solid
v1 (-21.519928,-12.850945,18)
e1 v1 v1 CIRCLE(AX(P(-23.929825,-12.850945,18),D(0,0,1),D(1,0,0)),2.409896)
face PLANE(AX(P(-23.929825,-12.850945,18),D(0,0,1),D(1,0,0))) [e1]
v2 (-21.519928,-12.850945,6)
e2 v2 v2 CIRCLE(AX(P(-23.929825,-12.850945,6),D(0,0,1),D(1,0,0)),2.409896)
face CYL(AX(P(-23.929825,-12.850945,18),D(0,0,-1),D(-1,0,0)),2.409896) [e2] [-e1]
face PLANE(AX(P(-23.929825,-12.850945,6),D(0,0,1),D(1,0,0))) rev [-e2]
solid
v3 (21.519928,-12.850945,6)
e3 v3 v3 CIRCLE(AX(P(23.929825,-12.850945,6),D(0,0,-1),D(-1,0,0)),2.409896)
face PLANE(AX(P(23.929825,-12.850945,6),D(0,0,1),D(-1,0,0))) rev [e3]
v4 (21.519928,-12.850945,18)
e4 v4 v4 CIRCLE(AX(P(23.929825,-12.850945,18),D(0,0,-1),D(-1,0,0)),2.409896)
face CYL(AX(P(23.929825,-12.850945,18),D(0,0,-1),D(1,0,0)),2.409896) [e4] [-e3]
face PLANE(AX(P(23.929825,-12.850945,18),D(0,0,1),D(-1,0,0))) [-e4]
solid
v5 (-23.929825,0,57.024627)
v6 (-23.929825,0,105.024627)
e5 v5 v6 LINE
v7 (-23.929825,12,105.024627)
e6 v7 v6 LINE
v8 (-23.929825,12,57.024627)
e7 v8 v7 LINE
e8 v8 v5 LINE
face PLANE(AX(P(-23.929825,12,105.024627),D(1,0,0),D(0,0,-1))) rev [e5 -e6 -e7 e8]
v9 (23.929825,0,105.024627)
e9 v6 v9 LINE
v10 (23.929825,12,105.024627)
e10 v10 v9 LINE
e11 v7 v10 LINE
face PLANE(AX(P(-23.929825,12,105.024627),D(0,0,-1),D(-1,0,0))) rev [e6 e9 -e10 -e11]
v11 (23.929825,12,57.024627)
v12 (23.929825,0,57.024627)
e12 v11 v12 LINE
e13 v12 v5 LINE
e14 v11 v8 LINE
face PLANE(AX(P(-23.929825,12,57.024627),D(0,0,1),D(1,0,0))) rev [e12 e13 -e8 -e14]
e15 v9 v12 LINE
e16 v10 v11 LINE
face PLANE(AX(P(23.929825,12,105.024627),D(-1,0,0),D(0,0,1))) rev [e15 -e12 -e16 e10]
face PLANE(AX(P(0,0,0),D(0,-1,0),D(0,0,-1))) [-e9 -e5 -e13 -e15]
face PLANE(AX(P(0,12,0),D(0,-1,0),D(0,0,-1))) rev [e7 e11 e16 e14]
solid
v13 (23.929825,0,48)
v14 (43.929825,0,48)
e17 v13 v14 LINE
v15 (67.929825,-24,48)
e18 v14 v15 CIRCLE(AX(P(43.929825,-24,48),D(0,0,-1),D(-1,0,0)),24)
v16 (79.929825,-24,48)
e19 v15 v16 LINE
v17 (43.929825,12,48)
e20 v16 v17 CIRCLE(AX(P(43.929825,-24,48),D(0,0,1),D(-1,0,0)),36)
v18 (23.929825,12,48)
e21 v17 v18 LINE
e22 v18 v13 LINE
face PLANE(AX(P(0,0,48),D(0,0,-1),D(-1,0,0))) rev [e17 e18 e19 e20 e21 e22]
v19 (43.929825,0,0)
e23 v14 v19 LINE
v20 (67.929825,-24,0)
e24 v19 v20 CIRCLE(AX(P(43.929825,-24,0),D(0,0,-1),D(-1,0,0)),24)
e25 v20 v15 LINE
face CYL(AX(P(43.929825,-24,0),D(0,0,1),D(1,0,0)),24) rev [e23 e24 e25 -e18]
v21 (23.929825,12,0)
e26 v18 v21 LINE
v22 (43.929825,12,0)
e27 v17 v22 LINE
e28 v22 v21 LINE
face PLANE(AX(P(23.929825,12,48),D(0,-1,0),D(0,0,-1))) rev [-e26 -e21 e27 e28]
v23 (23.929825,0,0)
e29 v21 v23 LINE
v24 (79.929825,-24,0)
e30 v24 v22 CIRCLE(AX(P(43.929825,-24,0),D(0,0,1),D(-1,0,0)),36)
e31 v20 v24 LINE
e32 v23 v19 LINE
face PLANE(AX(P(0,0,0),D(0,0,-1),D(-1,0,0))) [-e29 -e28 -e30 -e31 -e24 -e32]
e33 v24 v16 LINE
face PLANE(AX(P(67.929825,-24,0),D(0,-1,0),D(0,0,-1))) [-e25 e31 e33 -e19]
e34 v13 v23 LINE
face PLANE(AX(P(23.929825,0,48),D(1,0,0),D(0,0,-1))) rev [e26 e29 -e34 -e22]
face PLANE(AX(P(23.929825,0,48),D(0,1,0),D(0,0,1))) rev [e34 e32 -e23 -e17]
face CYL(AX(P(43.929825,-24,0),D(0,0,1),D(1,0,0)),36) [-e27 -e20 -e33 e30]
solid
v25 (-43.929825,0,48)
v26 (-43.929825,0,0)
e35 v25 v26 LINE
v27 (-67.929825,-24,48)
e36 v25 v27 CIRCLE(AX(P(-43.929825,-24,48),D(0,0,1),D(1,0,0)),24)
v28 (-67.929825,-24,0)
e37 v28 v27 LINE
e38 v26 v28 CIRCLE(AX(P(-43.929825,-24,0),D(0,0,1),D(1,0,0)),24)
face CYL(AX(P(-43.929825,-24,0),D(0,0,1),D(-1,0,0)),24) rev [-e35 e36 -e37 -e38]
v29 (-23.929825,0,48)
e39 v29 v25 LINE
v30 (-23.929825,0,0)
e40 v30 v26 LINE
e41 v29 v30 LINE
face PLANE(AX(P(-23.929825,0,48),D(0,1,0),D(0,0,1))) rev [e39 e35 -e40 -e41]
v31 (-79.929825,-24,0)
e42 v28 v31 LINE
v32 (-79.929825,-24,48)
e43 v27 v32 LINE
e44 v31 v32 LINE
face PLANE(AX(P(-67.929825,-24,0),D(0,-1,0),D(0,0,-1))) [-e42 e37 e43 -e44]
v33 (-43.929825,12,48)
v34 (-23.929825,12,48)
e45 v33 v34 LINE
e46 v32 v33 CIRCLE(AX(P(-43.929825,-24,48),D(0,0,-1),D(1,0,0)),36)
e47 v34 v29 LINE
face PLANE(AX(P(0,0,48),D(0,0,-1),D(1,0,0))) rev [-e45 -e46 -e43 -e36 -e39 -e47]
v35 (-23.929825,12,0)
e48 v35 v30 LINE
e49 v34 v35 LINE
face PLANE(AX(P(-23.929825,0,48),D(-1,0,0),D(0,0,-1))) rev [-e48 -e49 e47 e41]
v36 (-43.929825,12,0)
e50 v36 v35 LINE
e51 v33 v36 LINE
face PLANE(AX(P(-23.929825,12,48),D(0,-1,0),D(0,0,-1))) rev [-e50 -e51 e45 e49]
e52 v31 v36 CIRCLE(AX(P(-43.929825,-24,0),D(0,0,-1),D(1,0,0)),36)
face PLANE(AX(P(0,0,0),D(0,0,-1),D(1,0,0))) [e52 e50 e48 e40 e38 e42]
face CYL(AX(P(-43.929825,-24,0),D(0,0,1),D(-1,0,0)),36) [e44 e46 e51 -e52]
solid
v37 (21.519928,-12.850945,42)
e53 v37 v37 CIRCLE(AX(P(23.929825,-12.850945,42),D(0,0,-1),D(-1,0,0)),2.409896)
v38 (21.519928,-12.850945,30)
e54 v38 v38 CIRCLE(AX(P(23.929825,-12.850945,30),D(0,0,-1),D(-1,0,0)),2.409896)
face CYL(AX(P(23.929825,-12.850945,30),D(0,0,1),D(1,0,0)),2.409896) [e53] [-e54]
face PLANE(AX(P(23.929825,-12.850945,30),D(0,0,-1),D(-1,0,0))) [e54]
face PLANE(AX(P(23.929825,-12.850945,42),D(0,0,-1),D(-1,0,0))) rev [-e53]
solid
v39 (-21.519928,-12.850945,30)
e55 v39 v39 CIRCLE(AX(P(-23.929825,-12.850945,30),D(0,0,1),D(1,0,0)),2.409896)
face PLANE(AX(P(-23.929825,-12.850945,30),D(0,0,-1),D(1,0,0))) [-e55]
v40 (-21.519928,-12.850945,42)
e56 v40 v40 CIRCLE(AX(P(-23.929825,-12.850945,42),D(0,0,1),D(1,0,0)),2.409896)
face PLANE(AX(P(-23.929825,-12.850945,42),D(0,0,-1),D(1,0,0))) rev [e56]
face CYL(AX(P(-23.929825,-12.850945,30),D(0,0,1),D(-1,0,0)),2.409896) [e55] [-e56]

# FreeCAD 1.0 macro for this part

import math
import FreeCAD as App
import Part
import Sketcher

V = App.Vector
Q = App.Units.Quantity


def add_polygon(sketch, points):
    """Adds a closed chain of lines whose ends are joined by coincident constraints."""
    first, n = sketch.GeometryCount, len(points)
    for a, b in zip(points, points[1:] + points[:1]):
        sketch.addGeometry(Part.LineSegment(App.Vector(*a, 0), App.Vector(*b, 0)), False)
    for i in range(n):
        sketch.addConstraint(Sketcher.Constraint("Coincident", first + i, 2, first + (i + 1) % n, 1))

doc = App.newDocument("Part")
body = doc.addObject("PartDesign::Body", "Body")

sketch1 = body.newObject("Sketcher::SketchObject", "Sketch")
sketch1.AttachmentSupport = (doc.getObject("XY_Plane"), [""])
sketch1.MapMode = "FlatFace"
add_polygon(sketch1, [(24, 12), (24, 0), (44, 0), (44, 12)])
sketch1.addConstraint(Sketcher.Constraint("Vertical", 0))
sketch1.addConstraint(Sketcher.Constraint("Horizontal", 1))
sketch1.addConstraint(Sketcher.Constraint("Vertical", 2))
sketch1.addConstraint(Sketcher.Constraint("Horizontal", 3))
sketch1.addConstraint(Sketcher.Constraint("PointOnObject", 0, 2, -1))
sketch1.addConstraint(Sketcher.Constraint("DistanceX", 1, 1, 1, 2, Q("20 mm")))
sketch1.addConstraint(Sketcher.Constraint("DistanceY", 0, 2, 0, 1, Q("12 mm")))
sketch1.addConstraint(Sketcher.Constraint("DistanceX", -1, 1, 0, 2, Q("23.929825 mm")))
pad1 = body.newObject("PartDesign::Pad", "Pad")
pad1.Profile = sketch1
pad1.Length = 48

sketch2 = body.newObject("Sketcher::SketchObject", "Sketch001")
sketch2.AttachmentSupport = (doc.getObject("XY_Plane"), [""])
sketch2.MapMode = "FlatFace"
sketch2.AttachmentOffset = App.Placement(V(0, 0, 48), App.Rotation())
sketch2.addGeometry(Part.LineSegment(V(68, -24, 0), V(80, -24, 0)), False)
sketch2.addGeometry(Part.ArcOfCircle(Part.Circle(V(44, -24, 0), V(0, 0, 1), 36), math.radians(0), math.radians(90)), False)
sketch2.addGeometry(Part.LineSegment(V(44, 12, 0), V(44, 0, 0)), False)
sketch2.addGeometry(Part.ArcOfCircle(Part.Circle(V(44, -24, 0), V(0, 0, 1), 24), math.radians(0), math.radians(90)), False)
sketch2.addConstraint(Sketcher.Constraint("Coincident", 0, 2, 1, 1))
sketch2.addConstraint(Sketcher.Constraint("Coincident", 1, 2, 2, 1))
sketch2.addConstraint(Sketcher.Constraint("Coincident", 2, 2, 3, 2))
sketch2.addConstraint(Sketcher.Constraint("Coincident", 3, 1, 0, 1))
sketch2.addConstraint(Sketcher.Constraint("Horizontal", 0))
sketch2.addConstraint(Sketcher.Constraint("Vertical", 2))
sketch2.addConstraint(Sketcher.Constraint("Coincident", 3, 3, 1, 3))
sketch2.addConstraint(Sketcher.Constraint("PointOnObject", 2, 2, -1))
sketch2.addConstraint(Sketcher.Constraint("Horizontal", 3, 3, 0, 2))
sketch2.addConstraint(Sketcher.Constraint("Vertical", 3, 3, 1, 2))
sketch2.addConstraint(Sketcher.Constraint("Radius", 1, Q("36 mm")))
sketch2.addConstraint(Sketcher.Constraint("Radius", 3, Q("24 mm")))
sketch2.addConstraint(Sketcher.Constraint("DistanceX", -1, 1, 1, 3, Q("43.929825 mm")))
pad2 = body.newObject("PartDesign::Pad", "Pad001")
pad2.Profile = sketch2
pad2.Length = 48
pad2.Reversed = True
body2 = doc.addObject("PartDesign::Body", "Body001")
doc.recompute()

mirroring = doc.addObject("Part::Mirroring", "Mirroring")
mirroring.Source = body
mirroring.Base = V(0, 0, 0)
mirroring.Normal = V(1, 0, 0)
body2.BaseFeature = mirroring
doc.recompute()
body3 = doc.addObject("PartDesign::Body", "Body002")

sketch3 = body3.newObject("Sketcher::SketchObject", "Sketch002")
sketch3.AttachmentSupport = (doc.getObject("XZ_Plane002"), [""])
sketch3.MapMode = "FlatFace"
add_polygon(sketch3, [(-24, 57), (-24, 105), (24, 105), (24, 57)])
sketch3.addConstraint(Sketcher.Constraint("Vertical", 0))
sketch3.addConstraint(Sketcher.Constraint("Horizontal", 1))
sketch3.addConstraint(Sketcher.Constraint("Vertical", 2))
sketch3.addConstraint(Sketcher.Constraint("Horizontal", 3))
sketch3.addConstraint(Sketcher.Constraint("DistanceY", 0, 1, 0, 2, Q("48 mm")))
sketch3.addConstraint(Sketcher.Constraint("DistanceX", 1, 1, 1, 2, Q("47.859649 mm")))
sketch3.addConstraint(Sketcher.Constraint("DistanceX", 0, 2, -1, 1, Q("23.929825 mm")))
sketch3.addConstraint(Sketcher.Constraint("DistanceY", -1, 1, 0, 2, Q("105.024627 mm")))
pad3 = body3.newObject("PartDesign::Pad", "Pad002")
pad3.Profile = sketch3
pad3.Length = 12
pad3.Reversed = True
body4 = doc.addObject("PartDesign::Body", "Body003")

sketch4 = body4.newObject("Sketcher::SketchObject", "Sketch003")
sketch4.AttachmentSupport = (doc.getObject("XY_Plane003"), [""])
sketch4.MapMode = "FlatFace"
sketch4.AttachmentOffset = App.Placement(V(0, 0, 6), App.Rotation())
sketch4.addGeometry(Part.Circle(V(-23.9, -12.9, 0), V(0, 0, 1), 2.4), False)
sketch4.addConstraint(Sketcher.Constraint("Diameter", 0, Q("4.819792 mm")))
sketch4.addConstraint(Sketcher.Constraint("DistanceX", 0, 3, -1, 1, Q("23.929825 mm")))
sketch4.addConstraint(Sketcher.Constraint("DistanceY", 0, 3, -1, 1, Q("12.850945 mm")))
pad4 = body4.newObject("PartDesign::Pad", "Pad003")
pad4.Profile = sketch4
pad4.Length = 12
body5 = doc.addObject("PartDesign::Body", "Body004")
doc.recompute()

mirroring2 = doc.addObject("Part::Mirroring", "Mirroring001")
mirroring2.Source = body4
mirroring2.Base = V(0, 0, 24)
mirroring2.Normal = V(0, 0, 1)
body5.BaseFeature = mirroring2
doc.recompute()
body6 = doc.addObject("PartDesign::Body", "Body005")
doc.recompute()

mirroring3 = doc.addObject("Part::Mirroring", "Mirroring002")
mirroring3.Source = body4
mirroring3.Base = V(0, 0, 0)
mirroring3.Normal = V(1, 0, 0)
body6.BaseFeature = mirroring3
doc.recompute()
body7 = doc.addObject("PartDesign::Body", "Body006")
doc.recompute()

mirroring4 = doc.addObject("Part::Mirroring", "Mirroring003")
mirroring4.Source = body5
mirroring4.Base = V(0, 0, 0)
mirroring4.Normal = V(1, 0, 0)
body7.BaseFeature = mirroring4
doc.recompute()
mirroring.Visibility = False
mirroring2.Visibility = False
mirroring3.Visibility = False
mirroring4.Visibility = False

doc.recompute()
